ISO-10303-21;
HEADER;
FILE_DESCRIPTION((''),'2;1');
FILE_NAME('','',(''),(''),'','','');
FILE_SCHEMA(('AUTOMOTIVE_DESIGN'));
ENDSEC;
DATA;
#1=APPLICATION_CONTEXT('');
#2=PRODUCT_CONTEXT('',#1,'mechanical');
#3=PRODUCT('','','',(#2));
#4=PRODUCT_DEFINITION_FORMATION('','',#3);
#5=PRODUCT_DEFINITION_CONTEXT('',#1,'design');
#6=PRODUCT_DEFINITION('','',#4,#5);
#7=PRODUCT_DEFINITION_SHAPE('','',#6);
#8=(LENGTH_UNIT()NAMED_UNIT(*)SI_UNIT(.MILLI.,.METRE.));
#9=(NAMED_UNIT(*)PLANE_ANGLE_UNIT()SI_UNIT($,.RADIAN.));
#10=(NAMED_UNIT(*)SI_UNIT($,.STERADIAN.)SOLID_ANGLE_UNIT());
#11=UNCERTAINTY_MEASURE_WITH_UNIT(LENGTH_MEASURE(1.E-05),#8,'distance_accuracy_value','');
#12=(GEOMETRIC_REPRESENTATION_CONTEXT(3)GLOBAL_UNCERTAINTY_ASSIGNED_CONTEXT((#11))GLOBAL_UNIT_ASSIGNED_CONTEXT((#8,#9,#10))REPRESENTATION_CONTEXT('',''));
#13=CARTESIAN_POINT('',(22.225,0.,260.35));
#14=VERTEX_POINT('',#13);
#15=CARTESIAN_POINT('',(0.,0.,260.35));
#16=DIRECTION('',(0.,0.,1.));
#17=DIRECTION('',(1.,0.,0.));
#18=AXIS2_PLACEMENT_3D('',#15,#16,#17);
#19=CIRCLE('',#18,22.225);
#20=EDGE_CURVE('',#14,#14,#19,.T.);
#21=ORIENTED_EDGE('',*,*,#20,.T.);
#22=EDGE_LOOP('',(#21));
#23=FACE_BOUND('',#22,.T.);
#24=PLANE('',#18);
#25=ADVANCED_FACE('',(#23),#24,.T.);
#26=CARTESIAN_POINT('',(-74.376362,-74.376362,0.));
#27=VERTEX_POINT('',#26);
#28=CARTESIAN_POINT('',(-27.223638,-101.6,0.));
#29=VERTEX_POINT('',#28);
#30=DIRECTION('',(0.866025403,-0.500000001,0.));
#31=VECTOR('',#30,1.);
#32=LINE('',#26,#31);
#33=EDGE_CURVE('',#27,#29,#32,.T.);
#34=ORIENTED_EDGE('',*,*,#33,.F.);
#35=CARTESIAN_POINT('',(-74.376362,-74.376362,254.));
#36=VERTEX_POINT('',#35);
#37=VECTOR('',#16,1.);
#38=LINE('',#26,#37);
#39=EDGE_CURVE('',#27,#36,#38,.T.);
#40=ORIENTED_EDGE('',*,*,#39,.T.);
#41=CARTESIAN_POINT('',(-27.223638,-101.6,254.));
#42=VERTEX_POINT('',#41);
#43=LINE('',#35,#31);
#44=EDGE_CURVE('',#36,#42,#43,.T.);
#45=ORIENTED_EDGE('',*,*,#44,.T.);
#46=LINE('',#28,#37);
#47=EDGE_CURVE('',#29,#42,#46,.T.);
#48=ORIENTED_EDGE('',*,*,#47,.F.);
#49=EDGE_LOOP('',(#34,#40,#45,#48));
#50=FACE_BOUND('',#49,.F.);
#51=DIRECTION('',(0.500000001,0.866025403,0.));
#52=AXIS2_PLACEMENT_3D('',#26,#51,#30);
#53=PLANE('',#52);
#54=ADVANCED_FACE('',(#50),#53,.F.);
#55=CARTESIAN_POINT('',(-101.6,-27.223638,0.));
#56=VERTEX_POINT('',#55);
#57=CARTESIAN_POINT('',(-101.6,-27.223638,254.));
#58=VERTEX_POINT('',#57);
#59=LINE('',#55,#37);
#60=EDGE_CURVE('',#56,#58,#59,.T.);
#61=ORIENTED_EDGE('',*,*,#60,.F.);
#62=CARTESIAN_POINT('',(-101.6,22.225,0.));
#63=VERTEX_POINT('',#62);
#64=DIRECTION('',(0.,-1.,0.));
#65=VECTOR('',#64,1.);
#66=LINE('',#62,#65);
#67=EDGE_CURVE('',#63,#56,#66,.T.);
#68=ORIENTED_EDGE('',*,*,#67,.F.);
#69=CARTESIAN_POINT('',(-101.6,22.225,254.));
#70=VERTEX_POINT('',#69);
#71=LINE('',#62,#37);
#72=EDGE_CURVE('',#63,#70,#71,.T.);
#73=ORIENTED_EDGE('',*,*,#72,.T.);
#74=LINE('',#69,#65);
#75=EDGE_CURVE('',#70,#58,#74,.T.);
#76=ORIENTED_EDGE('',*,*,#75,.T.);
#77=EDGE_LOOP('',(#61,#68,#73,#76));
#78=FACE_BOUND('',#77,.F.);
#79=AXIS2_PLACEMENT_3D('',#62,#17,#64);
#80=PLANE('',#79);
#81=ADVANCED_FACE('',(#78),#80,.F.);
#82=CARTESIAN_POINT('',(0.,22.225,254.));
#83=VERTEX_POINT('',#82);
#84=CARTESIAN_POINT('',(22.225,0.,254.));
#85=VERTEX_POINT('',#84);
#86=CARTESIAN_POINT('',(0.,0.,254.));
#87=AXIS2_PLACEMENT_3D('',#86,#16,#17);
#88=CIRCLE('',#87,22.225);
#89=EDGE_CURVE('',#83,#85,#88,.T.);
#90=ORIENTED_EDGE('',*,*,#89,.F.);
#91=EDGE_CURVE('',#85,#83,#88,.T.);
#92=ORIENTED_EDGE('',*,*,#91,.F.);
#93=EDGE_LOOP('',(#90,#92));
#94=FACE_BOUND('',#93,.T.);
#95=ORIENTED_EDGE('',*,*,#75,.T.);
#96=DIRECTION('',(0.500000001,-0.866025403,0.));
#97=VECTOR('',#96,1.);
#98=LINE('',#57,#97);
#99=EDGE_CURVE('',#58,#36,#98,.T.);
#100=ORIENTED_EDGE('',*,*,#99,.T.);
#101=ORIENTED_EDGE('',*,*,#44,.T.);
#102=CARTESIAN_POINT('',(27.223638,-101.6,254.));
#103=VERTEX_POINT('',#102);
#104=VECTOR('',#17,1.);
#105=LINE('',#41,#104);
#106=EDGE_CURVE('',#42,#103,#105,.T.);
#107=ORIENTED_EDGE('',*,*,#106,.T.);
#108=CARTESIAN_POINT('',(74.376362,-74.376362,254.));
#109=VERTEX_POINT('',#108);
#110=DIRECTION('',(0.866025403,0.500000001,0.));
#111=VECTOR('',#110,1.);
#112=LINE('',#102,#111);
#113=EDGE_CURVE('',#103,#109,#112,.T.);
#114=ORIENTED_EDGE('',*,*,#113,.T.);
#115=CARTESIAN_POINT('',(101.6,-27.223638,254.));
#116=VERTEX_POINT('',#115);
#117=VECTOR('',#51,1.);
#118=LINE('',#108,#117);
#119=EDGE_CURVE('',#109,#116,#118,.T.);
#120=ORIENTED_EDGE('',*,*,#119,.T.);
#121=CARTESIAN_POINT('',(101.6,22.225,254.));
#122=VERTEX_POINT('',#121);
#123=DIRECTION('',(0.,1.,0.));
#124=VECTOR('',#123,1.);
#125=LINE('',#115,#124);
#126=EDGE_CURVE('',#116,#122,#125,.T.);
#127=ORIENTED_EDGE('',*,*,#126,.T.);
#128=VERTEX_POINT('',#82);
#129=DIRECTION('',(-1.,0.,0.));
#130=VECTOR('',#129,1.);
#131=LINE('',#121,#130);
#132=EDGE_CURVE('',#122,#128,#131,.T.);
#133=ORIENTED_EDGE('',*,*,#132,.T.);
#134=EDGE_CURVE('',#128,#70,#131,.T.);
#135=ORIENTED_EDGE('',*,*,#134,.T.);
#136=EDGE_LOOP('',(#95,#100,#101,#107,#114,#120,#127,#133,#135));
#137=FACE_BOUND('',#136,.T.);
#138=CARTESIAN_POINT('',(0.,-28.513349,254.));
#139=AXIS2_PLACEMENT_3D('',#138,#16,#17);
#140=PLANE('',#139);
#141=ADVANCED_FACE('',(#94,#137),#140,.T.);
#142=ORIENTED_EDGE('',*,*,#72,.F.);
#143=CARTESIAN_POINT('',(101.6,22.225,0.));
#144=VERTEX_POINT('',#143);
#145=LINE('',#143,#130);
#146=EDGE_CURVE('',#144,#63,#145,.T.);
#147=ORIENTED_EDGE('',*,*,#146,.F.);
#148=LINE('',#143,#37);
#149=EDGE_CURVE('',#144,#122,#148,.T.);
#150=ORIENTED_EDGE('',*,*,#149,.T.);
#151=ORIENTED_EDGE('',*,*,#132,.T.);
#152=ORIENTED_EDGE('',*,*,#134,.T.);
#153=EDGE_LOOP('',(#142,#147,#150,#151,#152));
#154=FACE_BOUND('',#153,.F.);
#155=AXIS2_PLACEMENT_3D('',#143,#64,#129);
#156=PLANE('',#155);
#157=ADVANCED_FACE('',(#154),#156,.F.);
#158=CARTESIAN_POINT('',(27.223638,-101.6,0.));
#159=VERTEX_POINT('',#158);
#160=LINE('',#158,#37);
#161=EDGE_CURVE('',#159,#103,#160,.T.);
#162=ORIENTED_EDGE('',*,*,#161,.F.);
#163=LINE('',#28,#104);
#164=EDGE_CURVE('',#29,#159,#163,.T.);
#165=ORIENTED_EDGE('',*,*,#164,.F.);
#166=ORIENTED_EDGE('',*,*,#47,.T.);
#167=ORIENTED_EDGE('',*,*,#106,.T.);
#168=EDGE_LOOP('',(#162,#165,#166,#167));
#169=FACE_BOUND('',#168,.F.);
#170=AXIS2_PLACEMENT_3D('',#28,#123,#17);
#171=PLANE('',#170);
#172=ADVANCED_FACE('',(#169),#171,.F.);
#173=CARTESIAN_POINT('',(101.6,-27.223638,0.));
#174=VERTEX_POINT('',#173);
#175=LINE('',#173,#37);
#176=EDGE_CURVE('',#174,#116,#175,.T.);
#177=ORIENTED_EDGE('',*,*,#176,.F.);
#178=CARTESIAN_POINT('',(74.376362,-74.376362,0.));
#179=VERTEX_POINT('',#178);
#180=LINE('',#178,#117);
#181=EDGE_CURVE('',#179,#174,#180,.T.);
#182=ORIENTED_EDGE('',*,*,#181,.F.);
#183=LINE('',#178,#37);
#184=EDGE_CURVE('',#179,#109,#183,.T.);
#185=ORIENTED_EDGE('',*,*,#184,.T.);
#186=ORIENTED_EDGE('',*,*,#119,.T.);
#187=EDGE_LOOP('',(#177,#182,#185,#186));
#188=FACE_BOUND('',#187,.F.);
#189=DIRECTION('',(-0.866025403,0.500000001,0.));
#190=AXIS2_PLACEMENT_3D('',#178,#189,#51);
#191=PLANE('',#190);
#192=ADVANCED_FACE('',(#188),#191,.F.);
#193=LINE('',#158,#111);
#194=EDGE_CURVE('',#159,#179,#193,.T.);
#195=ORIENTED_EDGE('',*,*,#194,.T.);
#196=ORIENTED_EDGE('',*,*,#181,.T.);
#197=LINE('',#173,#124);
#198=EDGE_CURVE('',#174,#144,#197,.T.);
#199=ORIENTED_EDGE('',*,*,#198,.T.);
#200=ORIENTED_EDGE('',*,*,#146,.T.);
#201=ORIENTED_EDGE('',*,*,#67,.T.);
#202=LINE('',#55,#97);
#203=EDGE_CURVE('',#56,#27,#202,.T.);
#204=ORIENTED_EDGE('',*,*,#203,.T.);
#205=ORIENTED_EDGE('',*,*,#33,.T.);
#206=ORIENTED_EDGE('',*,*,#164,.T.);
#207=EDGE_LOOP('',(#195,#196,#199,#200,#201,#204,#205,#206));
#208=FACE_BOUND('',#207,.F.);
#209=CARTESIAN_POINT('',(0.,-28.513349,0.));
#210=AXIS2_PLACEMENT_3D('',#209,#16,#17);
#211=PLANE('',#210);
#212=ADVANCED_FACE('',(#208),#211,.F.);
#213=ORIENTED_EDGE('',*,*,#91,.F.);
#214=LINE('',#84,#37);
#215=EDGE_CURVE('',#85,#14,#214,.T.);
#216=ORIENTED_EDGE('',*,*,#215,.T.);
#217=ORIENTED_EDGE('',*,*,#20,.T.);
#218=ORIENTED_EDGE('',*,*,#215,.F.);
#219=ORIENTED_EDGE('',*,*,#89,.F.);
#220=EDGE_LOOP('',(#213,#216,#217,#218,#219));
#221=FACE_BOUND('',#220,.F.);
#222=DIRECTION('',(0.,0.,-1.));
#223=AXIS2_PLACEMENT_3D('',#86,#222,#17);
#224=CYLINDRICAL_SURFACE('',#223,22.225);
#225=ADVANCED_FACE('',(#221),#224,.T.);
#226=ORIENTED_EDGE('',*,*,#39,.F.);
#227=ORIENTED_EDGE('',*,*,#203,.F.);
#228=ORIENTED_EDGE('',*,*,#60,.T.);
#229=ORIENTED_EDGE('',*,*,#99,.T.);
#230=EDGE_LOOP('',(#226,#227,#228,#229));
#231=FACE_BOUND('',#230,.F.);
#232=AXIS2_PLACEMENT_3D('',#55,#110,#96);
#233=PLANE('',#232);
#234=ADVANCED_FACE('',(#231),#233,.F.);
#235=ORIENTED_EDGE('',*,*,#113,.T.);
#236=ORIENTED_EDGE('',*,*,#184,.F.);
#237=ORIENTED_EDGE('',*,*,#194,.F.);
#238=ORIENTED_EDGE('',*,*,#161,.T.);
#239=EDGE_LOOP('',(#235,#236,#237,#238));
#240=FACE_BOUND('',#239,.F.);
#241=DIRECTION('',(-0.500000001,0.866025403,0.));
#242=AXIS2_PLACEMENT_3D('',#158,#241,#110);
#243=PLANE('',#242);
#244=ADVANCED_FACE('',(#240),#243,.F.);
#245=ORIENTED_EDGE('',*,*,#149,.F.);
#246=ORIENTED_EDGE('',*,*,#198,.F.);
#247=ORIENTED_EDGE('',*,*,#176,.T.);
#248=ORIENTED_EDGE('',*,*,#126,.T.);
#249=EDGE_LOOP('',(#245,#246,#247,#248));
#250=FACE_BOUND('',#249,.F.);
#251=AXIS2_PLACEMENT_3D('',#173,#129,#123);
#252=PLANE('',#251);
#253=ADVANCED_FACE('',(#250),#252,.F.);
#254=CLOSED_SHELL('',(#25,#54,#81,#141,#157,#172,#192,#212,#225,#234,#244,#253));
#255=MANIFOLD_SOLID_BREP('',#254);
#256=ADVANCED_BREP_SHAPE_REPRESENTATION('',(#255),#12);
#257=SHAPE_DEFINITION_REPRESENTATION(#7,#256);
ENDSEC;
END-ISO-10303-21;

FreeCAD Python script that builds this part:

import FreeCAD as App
import Part
import Sketcher
Q = App.Units.Quantity

doc = App.newDocument("Part")
params = doc.addObject("Spreadsheet::Sheet", "Params")
for row, (alias, value) in enumerate([
    ("sketch1_width", "8 in"),
    ("pad1_length", "10 in"),
    ("sketch2_diameter", "1.75 in"),
    ("pad2_length", "0.25 in"),
], start=1):
    params.set(f"A{row}", alias)
    params.set(f"B{row}", "=" + value)
    params.setAlias(f"B{row}", alias)

body = doc.addObject("PartDesign::Body", "Body")

sketch1 = body.newObject("Sketcher::SketchObject", "Sketch")
sketch1.AttachmentSupport = (doc.getObject("XY_Plane"), [""])
sketch1.MapMode = "FlatFace"
sketch1.addGeometry(Part.LineSegment(App.Vector(102, -27, 0), App.Vector(102, 22, 0)), False)
sketch1.addGeometry(Part.LineSegment(App.Vector(102, 22, 0), App.Vector(-102, 22, 0)), False)
sketch1.addGeometry(Part.LineSegment(App.Vector(-102, 22, 0), App.Vector(-102, -27, 0)), False)
sketch1.addGeometry(Part.LineSegment(App.Vector(-102, -27, 0), App.Vector(-74, -74, 0)), False)
sketch1.addGeometry(Part.LineSegment(App.Vector(-74, -74, 0), App.Vector(-27, -102, 0)), False)
sketch1.addGeometry(Part.LineSegment(App.Vector(-27, -102, 0), App.Vector(27, -102, 0)), False)
sketch1.addGeometry(Part.LineSegment(App.Vector(27, -102, 0), App.Vector(74, -74, 0)), False)
sketch1.addGeometry(Part.LineSegment(App.Vector(74, -74, 0), App.Vector(102, -27, 0)), False)
sketch1.addConstraint(Sketcher.Constraint("Coincident", 0, 2, 1, 1))
sketch1.addConstraint(Sketcher.Constraint("Coincident", 1, 2, 2, 1))
sketch1.addConstraint(Sketcher.Constraint("Coincident", 2, 2, 3, 1))
sketch1.addConstraint(Sketcher.Constraint("Coincident", 3, 2, 4, 1))
sketch1.addConstraint(Sketcher.Constraint("Coincident", 4, 2, 5, 1))
sketch1.addConstraint(Sketcher.Constraint("Coincident", 5, 2, 6, 1))
sketch1.addConstraint(Sketcher.Constraint("Coincident", 6, 2, 7, 1))
sketch1.addConstraint(Sketcher.Constraint("Coincident", 7, 2, 0, 1))
sketch1.addConstraint(Sketcher.Constraint("Vertical", 0))
sketch1.addConstraint(Sketcher.Constraint("Horizontal", 1))
sketch1.addConstraint(Sketcher.Constraint("Vertical", 2))
sketch1.addConstraint(Sketcher.Constraint("Horizontal", 5))
sketch1.addConstraint(Sketcher.Constraint("Symmetric", 3, 2, 6, 2, -2))
sketch1.addConstraint(Sketcher.Constraint("Symmetric", 2, 2, 7, 2, -2))
sketch1.addConstraint(Sketcher.Constraint("Perpendicular", 3, 6))
sketch1.addConstraint(Sketcher.Constraint("Perpendicular", 4, 7))
sketch1.addConstraint(Sketcher.Constraint("Equal", 3, 4))
sketch1.addConstraint(Sketcher.Constraint("DistanceX", 1, 2, 1, 1, Q("8 in")))
sketch1.addConstraint(Sketcher.Constraint("DistanceY", 4, 2, -1, 1, Q("4 in")))
sketch1.addConstraint(Sketcher.Constraint("Angle", 3, Q("-60 deg")))
sketch1.addConstraint(Sketcher.Constraint("DistanceX", 3, 2, 5, 2, Q("4 in")))
sketch1.addConstraint(Sketcher.Constraint("DistanceY", -1, 1, 0, 2, Q("0.875 in")))
sketch1.setExpression("Constraints[17]", "Params.sketch1_width")
pad1 = body.newObject("PartDesign::Pad", "Pad")
pad1.Profile = sketch1
pad1.setExpression("Length", "Params.pad1_length")

sketch2 = body.newObject("Sketcher::SketchObject", "Sketch001")
sketch2.AttachmentSupport = (doc.getObject("XY_Plane"), [""])
sketch2.MapMode = "FlatFace"
sketch2.AttachmentOffset = App.Placement(App.Vector(0, 0, 10 * 25.4), App.Rotation())
sketch2.addGeometry(Part.Circle(App.Vector(0, 0, 0), App.Vector(0, 0, 1), 22), False)
sketch2.addConstraint(Sketcher.Constraint("Coincident", 0, 3, -1, 1))
sketch2.addConstraint(Sketcher.Constraint("Diameter", 0, Q("1.75 in")))
sketch2.setExpression("Constraints[1]", "Params.sketch2_diameter")
pad2 = body.newObject("PartDesign::Pad", "Pad001")
pad2.Profile = sketch2
pad2.setExpression("Length", "Params.pad2_length")

doc.recompute()
